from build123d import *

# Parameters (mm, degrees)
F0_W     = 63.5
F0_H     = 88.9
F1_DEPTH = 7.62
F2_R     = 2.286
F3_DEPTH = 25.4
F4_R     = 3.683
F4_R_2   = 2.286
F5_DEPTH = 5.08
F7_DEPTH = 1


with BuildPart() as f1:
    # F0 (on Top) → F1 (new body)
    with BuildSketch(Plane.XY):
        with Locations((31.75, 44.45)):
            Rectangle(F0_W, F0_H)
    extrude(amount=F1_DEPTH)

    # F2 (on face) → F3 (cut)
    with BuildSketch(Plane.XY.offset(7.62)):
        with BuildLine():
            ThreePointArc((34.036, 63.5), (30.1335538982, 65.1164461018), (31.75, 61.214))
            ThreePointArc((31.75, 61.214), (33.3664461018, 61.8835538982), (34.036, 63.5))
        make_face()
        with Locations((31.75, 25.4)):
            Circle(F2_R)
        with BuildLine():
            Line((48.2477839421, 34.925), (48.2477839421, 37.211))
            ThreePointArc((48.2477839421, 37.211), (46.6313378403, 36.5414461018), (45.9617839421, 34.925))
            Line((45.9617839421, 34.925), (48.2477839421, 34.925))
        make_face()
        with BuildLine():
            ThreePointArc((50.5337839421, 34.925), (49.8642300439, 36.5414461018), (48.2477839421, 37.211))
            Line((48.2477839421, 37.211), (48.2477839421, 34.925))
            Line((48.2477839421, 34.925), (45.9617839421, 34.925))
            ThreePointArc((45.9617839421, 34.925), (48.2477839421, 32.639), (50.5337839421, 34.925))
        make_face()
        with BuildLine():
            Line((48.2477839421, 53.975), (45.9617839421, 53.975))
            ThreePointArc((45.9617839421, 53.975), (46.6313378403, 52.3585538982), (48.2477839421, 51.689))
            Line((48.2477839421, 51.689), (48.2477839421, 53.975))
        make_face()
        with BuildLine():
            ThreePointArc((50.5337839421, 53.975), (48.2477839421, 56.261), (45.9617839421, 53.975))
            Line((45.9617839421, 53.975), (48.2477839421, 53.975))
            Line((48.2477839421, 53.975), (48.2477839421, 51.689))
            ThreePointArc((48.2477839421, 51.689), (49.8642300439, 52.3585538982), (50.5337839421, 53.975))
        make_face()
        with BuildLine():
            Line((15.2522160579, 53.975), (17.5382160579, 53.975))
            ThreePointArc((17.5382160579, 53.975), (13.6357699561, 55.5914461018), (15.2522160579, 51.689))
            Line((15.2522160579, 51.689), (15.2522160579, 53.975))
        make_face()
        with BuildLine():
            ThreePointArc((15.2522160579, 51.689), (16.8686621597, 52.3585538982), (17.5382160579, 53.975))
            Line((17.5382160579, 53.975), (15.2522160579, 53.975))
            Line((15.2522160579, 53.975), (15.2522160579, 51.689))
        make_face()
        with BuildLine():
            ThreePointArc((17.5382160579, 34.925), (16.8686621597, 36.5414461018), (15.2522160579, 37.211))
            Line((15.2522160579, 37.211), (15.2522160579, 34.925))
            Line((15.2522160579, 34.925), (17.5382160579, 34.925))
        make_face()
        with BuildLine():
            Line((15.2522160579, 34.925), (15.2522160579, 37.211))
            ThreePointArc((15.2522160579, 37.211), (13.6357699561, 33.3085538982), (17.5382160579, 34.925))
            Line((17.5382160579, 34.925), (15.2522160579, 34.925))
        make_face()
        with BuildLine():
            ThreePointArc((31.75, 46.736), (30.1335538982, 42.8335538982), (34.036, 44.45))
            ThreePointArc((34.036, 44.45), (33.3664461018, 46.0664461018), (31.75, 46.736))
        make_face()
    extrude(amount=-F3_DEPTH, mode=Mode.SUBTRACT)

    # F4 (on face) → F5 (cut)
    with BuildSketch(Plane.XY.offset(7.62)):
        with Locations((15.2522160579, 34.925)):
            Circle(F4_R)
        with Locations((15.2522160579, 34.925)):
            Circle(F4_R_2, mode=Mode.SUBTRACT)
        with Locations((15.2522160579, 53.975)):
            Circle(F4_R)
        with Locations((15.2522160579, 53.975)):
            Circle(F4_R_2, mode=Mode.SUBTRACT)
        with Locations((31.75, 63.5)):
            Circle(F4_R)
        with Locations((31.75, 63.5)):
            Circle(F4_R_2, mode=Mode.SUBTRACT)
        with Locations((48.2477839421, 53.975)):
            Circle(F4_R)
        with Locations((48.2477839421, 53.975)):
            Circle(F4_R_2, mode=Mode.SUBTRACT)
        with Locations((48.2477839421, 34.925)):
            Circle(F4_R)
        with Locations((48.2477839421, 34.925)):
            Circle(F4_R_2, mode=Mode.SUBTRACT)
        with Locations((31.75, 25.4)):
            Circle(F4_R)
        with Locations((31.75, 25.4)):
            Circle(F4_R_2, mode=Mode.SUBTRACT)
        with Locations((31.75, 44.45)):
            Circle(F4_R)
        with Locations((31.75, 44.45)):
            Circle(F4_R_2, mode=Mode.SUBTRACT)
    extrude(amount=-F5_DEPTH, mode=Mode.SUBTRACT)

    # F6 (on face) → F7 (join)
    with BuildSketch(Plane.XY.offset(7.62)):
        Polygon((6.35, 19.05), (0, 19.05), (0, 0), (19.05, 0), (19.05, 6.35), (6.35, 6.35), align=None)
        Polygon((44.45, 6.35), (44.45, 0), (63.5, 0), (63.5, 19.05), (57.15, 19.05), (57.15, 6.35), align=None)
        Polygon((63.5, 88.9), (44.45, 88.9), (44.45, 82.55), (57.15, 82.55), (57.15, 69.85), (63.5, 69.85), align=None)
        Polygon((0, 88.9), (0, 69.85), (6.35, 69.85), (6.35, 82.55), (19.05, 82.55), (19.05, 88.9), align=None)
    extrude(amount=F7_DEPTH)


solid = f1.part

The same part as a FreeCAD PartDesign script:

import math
import FreeCAD as App
import Part
import Sketcher

V = App.Vector
Q = App.Units.Quantity


def add_polygon(sketch, points):
    """Adds a closed chain of lines whose ends are joined by coincident constraints."""
    first, n = sketch.GeometryCount, len(points)
    for a, b in zip(points, points[1:] + points[:1]):
        sketch.addGeometry(Part.LineSegment(App.Vector(*a, 0), App.Vector(*b, 0)), False)
    for i in range(n):
        sketch.addConstraint(Sketcher.Constraint("Coincident", first + i, 2, first + (i + 1) % n, 1))

doc = App.newDocument("Part")
body = doc.addObject("PartDesign::Body", "Body")

sketch1 = body.newObject("Sketcher::SketchObject", "Sketch")
sketch1.AttachmentSupport = (doc.getObject("XY_Plane"), [""])
sketch1.MapMode = "FlatFace"
add_polygon(sketch1, [(0, 89), (0, 0), (64, 0), (64, 89)])
sketch1.addConstraint(Sketcher.Constraint("Vertical", 0))
sketch1.addConstraint(Sketcher.Constraint("Horizontal", 1))
sketch1.addConstraint(Sketcher.Constraint("Vertical", 2))
sketch1.addConstraint(Sketcher.Constraint("Horizontal", 3))
sketch1.addConstraint(Sketcher.Constraint("Coincident", 0, 2, -1, 1))
sketch1.addConstraint(Sketcher.Constraint("DistanceX", 1, 1, 1, 2, Q("2.5 in")))
sketch1.addConstraint(Sketcher.Constraint("DistanceY", 0, 2, 0, 1, Q("3.5 in")))
pad1 = body.newObject("PartDesign::Pad", "Pad")
pad1.Profile = sketch1
pad1.Length = Q("0.3 in")

sketch2 = body.newObject("Sketcher::SketchObject", "Sketch001")
sketch2.AttachmentSupport = (doc.getObject("XY_Plane"), [""])
sketch2.MapMode = "FlatFace"
sketch2.AttachmentOffset = App.Placement(V(0, 0, 0.3 * 25.4), App.Rotation())
sketch2.addGeometry(Part.ArcOfCircle(Part.Circle(V(31.8, 63.5, 0), V(0, 0, 1), 2.3), math.radians(0), math.radians(270)), False)
sketch2.addGeometry(Part.ArcOfCircle(Part.Circle(V(31.8, 63.5, 0), V(0, 0, 1), 2.3), math.radians(-90), math.radians(0)), False)
sketch2.addGeometry(Part.Circle(V(31.8, 25.4, 0), V(0, 0, 1), 2.3), False)
sketch2.addGeometry(Part.ArcOfCircle(Part.Circle(V(48.2, 34.9, 0), V(0, 0, 1), 2.3), math.radians(90), math.radians(180)), False)
sketch2.addGeometry(Part.ArcOfCircle(Part.Circle(V(48.2, 34.9, 0), V(0, 0, 1), 2.3), math.radians(180), math.radians(360)), False)
sketch2.addGeometry(Part.ArcOfCircle(Part.Circle(V(48.2, 34.9, 0), V(0, 0, 1), 2.3), math.radians(0), math.radians(90)), False)
sketch2.addGeometry(Part.ArcOfCircle(Part.Circle(V(48.2, 54, 0), V(0, 0, 1), 2.3), math.radians(180), math.radians(270)), False)
sketch2.addGeometry(Part.ArcOfCircle(Part.Circle(V(48.2, 54, 0), V(0, 0, 1), 2.3), math.radians(-90), math.radians(0)), False)
sketch2.addGeometry(Part.ArcOfCircle(Part.Circle(V(48.2, 54, 0), V(0, 0, 1), 2.3), math.radians(0), math.radians(180)), False)
sketch2.addGeometry(Part.ArcOfCircle(Part.Circle(V(15.3, 54, 0), V(0, 0, 1), 2.3), math.radians(0), math.radians(270)), False)
sketch2.addGeometry(Part.ArcOfCircle(Part.Circle(V(15.3, 54, 0), V(0, 0, 1), 2.3), math.radians(-90), math.radians(0)), False)
sketch2.addGeometry(Part.ArcOfCircle(Part.Circle(V(15.3, 34.9, 0), V(0, 0, 1), 2.3), math.radians(0), math.radians(90)), False)
sketch2.addGeometry(Part.ArcOfCircle(Part.Circle(V(15.3, 34.9, 0), V(0, 0, 1), 2.3), math.radians(90), math.radians(360)), False)
sketch2.addGeometry(Part.ArcOfCircle(Part.Circle(V(31.8, 44.5, 0), V(0, 0, 1), 2.3), math.radians(90), math.radians(360)), False)
sketch2.addGeometry(Part.ArcOfCircle(Part.Circle(V(31.8, 44.5, 0), V(0, 0, 1), 2.3), math.radians(0), math.radians(90)), False)
sketch2.addConstraint(Sketcher.Constraint("Tangent", 0, 1, 1, 2))
sketch2.addConstraint(Sketcher.Constraint("Coincident", 1, 1, 0, 2))
sketch2.addConstraint(Sketcher.Constraint("Tangent", 3, 2, 4, 1))
sketch2.addConstraint(Sketcher.Constraint("Tangent", 4, 2, 5, 1))
sketch2.addConstraint(Sketcher.Constraint("Tangent", 5, 2, 3, 1))
sketch2.addConstraint(Sketcher.Constraint("Tangent", 6, 2, 7, 1))
sketch2.addConstraint(Sketcher.Constraint("Tangent", 7, 2, 8, 1))
sketch2.addConstraint(Sketcher.Constraint("Tangent", 8, 2, 6, 1))
sketch2.addConstraint(Sketcher.Constraint("Tangent", 9, 1, 10, 2))
sketch2.addConstraint(Sketcher.Constraint("Coincident", 10, 1, 9, 2))
sketch2.addConstraint(Sketcher.Constraint("Tangent", 11, 1, 12, 2))
sketch2.addConstraint(Sketcher.Constraint("Coincident", 12, 1, 11, 2))
sketch2.addConstraint(Sketcher.Constraint("Tangent", 13, 1, 14, 2))
sketch2.addConstraint(Sketcher.Constraint("Coincident", 14, 1, 13, 2))
sketch2.addConstraint(Sketcher.Constraint("Equal", 1, 2))
sketch2.addConstraint(Sketcher.Constraint("Equal", 2, 3))
sketch2.addConstraint(Sketcher.Constraint("Equal", 5, 6))
sketch2.addConstraint(Sketcher.Constraint("Equal", 8, 9))
sketch2.addConstraint(Sketcher.Constraint("Equal", 10, 11))
sketch2.addConstraint(Sketcher.Constraint("Equal", 12, 13))
sketch2.addConstraint(Sketcher.Constraint("Horizontal", 8, 3, 9, 3))
sketch2.addConstraint(Sketcher.Constraint("Horizontal", 5, 3, 11, 3))
sketch2.addConstraint(Sketcher.Constraint("Horizontal", 1, 3, 0, 1))
sketch2.addConstraint(Sketcher.Constraint("Horizontal", 12, 3, 3, 2))
sketch2.addConstraint(Sketcher.Constraint("Horizontal", 3, 2, 4, 2))
sketch2.addConstraint(Sketcher.Constraint("Horizontal", 10, 3, 7, 2))
sketch2.addConstraint(Sketcher.Constraint("Horizontal", 7, 2, 8, 2))
sketch2.addConstraint(Sketcher.Constraint("Horizontal", 8, 2, 9, 1))
sketch2.addConstraint(Sketcher.Constraint("Horizontal", 4, 2, 11, 1))
sketch2.addConstraint(Sketcher.Constraint("Horizontal", 13, 3, 14, 1))
sketch2.addConstraint(Sketcher.Constraint("Vertical", 1, 3, 2, 3))
sketch2.addConstraint(Sketcher.Constraint("Vertical", 5, 3, 6, 3))
sketch2.addConstraint(Sketcher.Constraint("Vertical", 10, 3, 11, 3))
sketch2.addConstraint(Sketcher.Constraint("Vertical", 2, 3, 13, 3))
sketch2.addConstraint(Sketcher.Constraint("Vertical", 14, 3, 1, 1))
sketch2.addConstraint(Sketcher.Constraint("Vertical", 8, 3, 5, 2))
sketch2.addConstraint(Sketcher.Constraint("Vertical", 5, 2, 6, 2))
sketch2.addConstraint(Sketcher.Constraint("Vertical", 12, 3, 10, 1))
sketch2.addConstraint(Sketcher.Constraint("Vertical", 10, 1, 12, 1))
sketch2.addConstraint(Sketcher.Constraint("Vertical", 1, 1, 13, 1))
sketch2.addConstraint(Sketcher.Constraint("Diameter", 2, Q("0.18 in")))
sketch2.addConstraint(Sketcher.Constraint("DistanceY", -1, 1, 2, 3, Q("1 in")))
sketch2.addConstraint(Sketcher.Constraint("DistanceY", -1, 1, 0, 3, Q("2.5 in")))
sketch2.addConstraint(Sketcher.Constraint("DistanceX", -1, 1, 0, 3, Q("1.25 in")))
sketch2.addConstraint(Sketcher.Constraint("DistanceY", -1, 1, 13, 3, Q("1.75 in")))
sketch2.addConstraint(Sketcher.Constraint("DistanceY", 3, 3, 6, 3, Q("0.75 in")))
sketch2.addConstraint(Sketcher.Constraint("DistanceY", -1, 1, 3, 3, Q("1.375 in")))
sketch2.addConstraint(Sketcher.Constraint("DistanceX", -1, 1, 3, 3, Q("48.247784 mm")))
sketch2.addConstraint(Sketcher.Constraint("DistanceX", -1, 1, 9, 3, Q("15.252216 mm")))
pocket1 = body.newObject("PartDesign::Pocket", "Pocket")
pocket1.Profile = sketch2
pocket1.Length = Q("1 in")

sketch3 = body.newObject("Sketcher::SketchObject", "Sketch002")
sketch3.AttachmentSupport = (doc.getObject("XY_Plane"), [""])
sketch3.MapMode = "FlatFace"
sketch3.AttachmentOffset = App.Placement(V(0, 0, 0.3 * 25.4), App.Rotation())
sketch3.addGeometry(Part.Circle(V(15.3, 34.9, 0), V(0, 0, 1), 3.7), False)
sketch3.addGeometry(Part.Circle(V(15.3, 34.9, 0), V(0, 0, 1), 2.3), False)
sketch3.addGeometry(Part.Circle(V(15.3, 54, 0), V(0, 0, 1), 3.7), False)
sketch3.addGeometry(Part.Circle(V(15.3, 54, 0), V(0, 0, 1), 2.3), False)
sketch3.addGeometry(Part.Circle(V(31.8, 63.5, 0), V(0, 0, 1), 3.7), False)
sketch3.addGeometry(Part.Circle(V(31.8, 63.5, 0), V(0, 0, 1), 2.3), False)
sketch3.addGeometry(Part.Circle(V(48.2, 54, 0), V(0, 0, 1), 3.7), False)
sketch3.addGeometry(Part.Circle(V(48.2, 54, 0), V(0, 0, 1), 2.3), False)
sketch3.addGeometry(Part.Circle(V(48.2, 34.9, 0), V(0, 0, 1), 3.7), False)
sketch3.addGeometry(Part.Circle(V(48.2, 34.9, 0), V(0, 0, 1), 2.3), False)
sketch3.addGeometry(Part.Circle(V(31.8, 25.4, 0), V(0, 0, 1), 3.7), False)
sketch3.addGeometry(Part.Circle(V(31.8, 25.4, 0), V(0, 0, 1), 2.3), False)
sketch3.addGeometry(Part.Circle(V(31.8, 44.5, 0), V(0, 0, 1), 3.7), False)
sketch3.addGeometry(Part.Circle(V(31.8, 44.5, 0), V(0, 0, 1), 2.3), False)
sketch3.addConstraint(Sketcher.Constraint("Coincident", 1, 3, 0, 3))
sketch3.addConstraint(Sketcher.Constraint("Coincident", 3, 3, 2, 3))
sketch3.addConstraint(Sketcher.Constraint("Coincident", 5, 3, 4, 3))
sketch3.addConstraint(Sketcher.Constraint("Coincident", 7, 3, 6, 3))
sketch3.addConstraint(Sketcher.Constraint("Coincident", 9, 3, 8, 3))
sketch3.addConstraint(Sketcher.Constraint("Coincident", 11, 3, 10, 3))
sketch3.addConstraint(Sketcher.Constraint("Coincident", 13, 3, 12, 3))
sketch3.addConstraint(Sketcher.Constraint("Equal", 0, 2))
sketch3.addConstraint(Sketcher.Constraint("Equal", 1, 3))
sketch3.addConstraint(Sketcher.Constraint("Equal", 2, 4))
sketch3.addConstraint(Sketcher.Constraint("Equal", 3, 5))
sketch3.addConstraint(Sketcher.Constraint("Equal", 4, 6))
sketch3.addConstraint(Sketcher.Constraint("Equal", 5, 7))
sketch3.addConstraint(Sketcher.Constraint("Equal", 6, 8))
sketch3.addConstraint(Sketcher.Constraint("Equal", 7, 9))
sketch3.addConstraint(Sketcher.Constraint("Equal", 8, 10))
sketch3.addConstraint(Sketcher.Constraint("Equal", 9, 11))
sketch3.addConstraint(Sketcher.Constraint("Equal", 10, 12))
sketch3.addConstraint(Sketcher.Constraint("Equal", 11, 13))
sketch3.addConstraint(Sketcher.Constraint("Horizontal", 3, 3, 6, 3))
sketch3.addConstraint(Sketcher.Constraint("Horizontal", 1, 3, 8, 3))
sketch3.addConstraint(Sketcher.Constraint("Vertical", 1, 3, 2, 3))
sketch3.addConstraint(Sketcher.Constraint("Vertical", 7, 3, 8, 3))
sketch3.addConstraint(Sketcher.Constraint("Vertical", 5, 3, 10, 3))
sketch3.addConstraint(Sketcher.Constraint("Vertical", 11, 3, 12, 3))
sketch3.addConstraint(Sketcher.Constraint("Diameter", 0, Q("0.29 in")))
sketch3.addConstraint(Sketcher.Constraint("Diameter", 1, Q("0.18 in")))
sketch3.addConstraint(Sketcher.Constraint("DistanceY", -1, 1, 10, 3, Q("1 in")))
sketch3.addConstraint(Sketcher.Constraint("DistanceY", -1, 1, 4, 3, Q("2.5 in")))
sketch3.addConstraint(Sketcher.Constraint("DistanceX", -1, 1, 4, 3, Q("1.25 in")))
sketch3.addConstraint(Sketcher.Constraint("DistanceY", -1, 1, 12, 3, Q("1.75 in")))
sketch3.addConstraint(Sketcher.Constraint("DistanceY", 0, 3, 2, 3, Q("0.75 in")))
sketch3.addConstraint(Sketcher.Constraint("DistanceY", -1, 1, 0, 3, Q("1.375 in")))
sketch3.addConstraint(Sketcher.Constraint("DistanceX", -1, 1, 0, 3, Q("15.252216 mm")))
sketch3.addConstraint(Sketcher.Constraint("DistanceX", -1, 1, 6, 3, Q("48.247784 mm")))
pocket2 = body.newObject("PartDesign::Pocket", "Pocket001")
pocket2.Profile = sketch3
pocket2.Length = Q("0.2 in")

sketch4 = body.newObject("Sketcher::SketchObject", "Sketch003")
sketch4.AttachmentSupport = (doc.getObject("XY_Plane"), [""])
sketch4.MapMode = "FlatFace"
sketch4.AttachmentOffset = App.Placement(V(0, 0, 0.3 * 25.4), App.Rotation())
add_polygon(sketch4, [(6, 19), (0, 19), (0, 0), (19, 0), (19, 6), (6, 6)])
add_polygon(sketch4, [(44, 6), (44, 0), (64, 0), (64, 19), (57, 19), (57, 6)])
add_polygon(sketch4, [(64, 89), (44, 89), (44, 83), (57, 83), (57, 70), (64, 70)])
add_polygon(sketch4, [(0, 89), (0, 70), (6, 70), (6, 83), (19, 83), (19, 89)])
sketch4.addConstraint(Sketcher.Constraint("Horizontal", 0))
sketch4.addConstraint(Sketcher.Constraint("Vertical", 1))
sketch4.addConstraint(Sketcher.Constraint("Horizontal", 2))
sketch4.addConstraint(Sketcher.Constraint("Vertical", 3))
sketch4.addConstraint(Sketcher.Constraint("Horizontal", 4))
sketch4.addConstraint(Sketcher.Constraint("Vertical", 5))
sketch4.addConstraint(Sketcher.Constraint("Vertical", 6))
sketch4.addConstraint(Sketcher.Constraint("Horizontal", 7))
sketch4.addConstraint(Sketcher.Constraint("Vertical", 8))
sketch4.addConstraint(Sketcher.Constraint("Horizontal", 9))
sketch4.addConstraint(Sketcher.Constraint("Vertical", 10))
sketch4.addConstraint(Sketcher.Constraint("Horizontal", 11))
sketch4.addConstraint(Sketcher.Constraint("Horizontal", 12))
sketch4.addConstraint(Sketcher.Constraint("Vertical", 13))
sketch4.addConstraint(Sketcher.Constraint("Horizontal", 14))
sketch4.addConstraint(Sketcher.Constraint("Vertical", 15))
sketch4.addConstraint(Sketcher.Constraint("Horizontal", 16))
sketch4.addConstraint(Sketcher.Constraint("Vertical", 17))
sketch4.addConstraint(Sketcher.Constraint("Vertical", 18))
sketch4.addConstraint(Sketcher.Constraint("Horizontal", 19))
sketch4.addConstraint(Sketcher.Constraint("Vertical", 20))
sketch4.addConstraint(Sketcher.Constraint("Horizontal", 21))
sketch4.addConstraint(Sketcher.Constraint("Vertical", 22))
sketch4.addConstraint(Sketcher.Constraint("Horizontal", 23))
sketch4.addConstraint(Sketcher.Constraint("Coincident", 1, 2, -1, 1))
sketch4.addConstraint(Sketcher.Constraint("PointOnObject", 6, 2, -1))
sketch4.addConstraint(Sketcher.Constraint("PointOnObject", 18, 2, -2))
sketch4.addConstraint(Sketcher.Constraint("Horizontal", 5, 2, 8, 2))
sketch4.addConstraint(Sketcher.Constraint("Horizontal", 4, 2, 10, 2))
sketch4.addConstraint(Sketcher.Constraint("Horizontal", 16, 2, 18, 2))
sketch4.addConstraint(Sketcher.Constraint("Horizontal", 14, 2, 20, 2))
sketch4.addConstraint(Sketcher.Constraint("Horizontal", 17, 2, 22, 2))
sketch4.addConstraint(Sketcher.Constraint("Vertical", 11, 2, 12, 2))
sketch4.addConstraint(Sketcher.Constraint("Vertical", 10, 2, 14, 2))
sketch4.addConstraint(Sketcher.Constraint("Vertical", 8, 2, 16, 2))
sketch4.addConstraint(Sketcher.Constraint("Vertical", 5, 2, 19, 2))
sketch4.addConstraint(Sketcher.Constraint("Vertical", 3, 2, 21, 2))
sketch4.addConstraint(Sketcher.Constraint("Equal", 2, 7))
sketch4.addConstraint(Sketcher.Constraint("Equal", 0, 9))
sketch4.addConstraint(Sketcher.Constraint("Equal", 23, 1))
sketch4.addConstraint(Sketcher.Constraint("Equal", 19, 3))
sketch4.addConstraint(Sketcher.Constraint("Equal", 6, 13))
sketch4.addConstraint(Sketcher.Constraint("Equal", 10, 15))
sketch4.addConstraint(Sketcher.Constraint("DistanceX", 4, 2, 4, 1, Q("0.5 in")))
sketch4.addConstraint(Sketcher.Constraint("DistanceX", 2, 2, 6, 2, Q("1 in")))
sketch4.addConstraint(Sketcher.Constraint("DistanceY", 11, 2, 13, 2, Q("3 in")))
sketch4.addConstraint(Sketcher.Constraint("DistanceX", 0, 2, 0, 1, Q("0.25 in")))
pad2 = body.newObject("PartDesign::Pad", "Pad001")
pad2.Profile = sketch4
pad2.Length = 1

doc.recompute()
